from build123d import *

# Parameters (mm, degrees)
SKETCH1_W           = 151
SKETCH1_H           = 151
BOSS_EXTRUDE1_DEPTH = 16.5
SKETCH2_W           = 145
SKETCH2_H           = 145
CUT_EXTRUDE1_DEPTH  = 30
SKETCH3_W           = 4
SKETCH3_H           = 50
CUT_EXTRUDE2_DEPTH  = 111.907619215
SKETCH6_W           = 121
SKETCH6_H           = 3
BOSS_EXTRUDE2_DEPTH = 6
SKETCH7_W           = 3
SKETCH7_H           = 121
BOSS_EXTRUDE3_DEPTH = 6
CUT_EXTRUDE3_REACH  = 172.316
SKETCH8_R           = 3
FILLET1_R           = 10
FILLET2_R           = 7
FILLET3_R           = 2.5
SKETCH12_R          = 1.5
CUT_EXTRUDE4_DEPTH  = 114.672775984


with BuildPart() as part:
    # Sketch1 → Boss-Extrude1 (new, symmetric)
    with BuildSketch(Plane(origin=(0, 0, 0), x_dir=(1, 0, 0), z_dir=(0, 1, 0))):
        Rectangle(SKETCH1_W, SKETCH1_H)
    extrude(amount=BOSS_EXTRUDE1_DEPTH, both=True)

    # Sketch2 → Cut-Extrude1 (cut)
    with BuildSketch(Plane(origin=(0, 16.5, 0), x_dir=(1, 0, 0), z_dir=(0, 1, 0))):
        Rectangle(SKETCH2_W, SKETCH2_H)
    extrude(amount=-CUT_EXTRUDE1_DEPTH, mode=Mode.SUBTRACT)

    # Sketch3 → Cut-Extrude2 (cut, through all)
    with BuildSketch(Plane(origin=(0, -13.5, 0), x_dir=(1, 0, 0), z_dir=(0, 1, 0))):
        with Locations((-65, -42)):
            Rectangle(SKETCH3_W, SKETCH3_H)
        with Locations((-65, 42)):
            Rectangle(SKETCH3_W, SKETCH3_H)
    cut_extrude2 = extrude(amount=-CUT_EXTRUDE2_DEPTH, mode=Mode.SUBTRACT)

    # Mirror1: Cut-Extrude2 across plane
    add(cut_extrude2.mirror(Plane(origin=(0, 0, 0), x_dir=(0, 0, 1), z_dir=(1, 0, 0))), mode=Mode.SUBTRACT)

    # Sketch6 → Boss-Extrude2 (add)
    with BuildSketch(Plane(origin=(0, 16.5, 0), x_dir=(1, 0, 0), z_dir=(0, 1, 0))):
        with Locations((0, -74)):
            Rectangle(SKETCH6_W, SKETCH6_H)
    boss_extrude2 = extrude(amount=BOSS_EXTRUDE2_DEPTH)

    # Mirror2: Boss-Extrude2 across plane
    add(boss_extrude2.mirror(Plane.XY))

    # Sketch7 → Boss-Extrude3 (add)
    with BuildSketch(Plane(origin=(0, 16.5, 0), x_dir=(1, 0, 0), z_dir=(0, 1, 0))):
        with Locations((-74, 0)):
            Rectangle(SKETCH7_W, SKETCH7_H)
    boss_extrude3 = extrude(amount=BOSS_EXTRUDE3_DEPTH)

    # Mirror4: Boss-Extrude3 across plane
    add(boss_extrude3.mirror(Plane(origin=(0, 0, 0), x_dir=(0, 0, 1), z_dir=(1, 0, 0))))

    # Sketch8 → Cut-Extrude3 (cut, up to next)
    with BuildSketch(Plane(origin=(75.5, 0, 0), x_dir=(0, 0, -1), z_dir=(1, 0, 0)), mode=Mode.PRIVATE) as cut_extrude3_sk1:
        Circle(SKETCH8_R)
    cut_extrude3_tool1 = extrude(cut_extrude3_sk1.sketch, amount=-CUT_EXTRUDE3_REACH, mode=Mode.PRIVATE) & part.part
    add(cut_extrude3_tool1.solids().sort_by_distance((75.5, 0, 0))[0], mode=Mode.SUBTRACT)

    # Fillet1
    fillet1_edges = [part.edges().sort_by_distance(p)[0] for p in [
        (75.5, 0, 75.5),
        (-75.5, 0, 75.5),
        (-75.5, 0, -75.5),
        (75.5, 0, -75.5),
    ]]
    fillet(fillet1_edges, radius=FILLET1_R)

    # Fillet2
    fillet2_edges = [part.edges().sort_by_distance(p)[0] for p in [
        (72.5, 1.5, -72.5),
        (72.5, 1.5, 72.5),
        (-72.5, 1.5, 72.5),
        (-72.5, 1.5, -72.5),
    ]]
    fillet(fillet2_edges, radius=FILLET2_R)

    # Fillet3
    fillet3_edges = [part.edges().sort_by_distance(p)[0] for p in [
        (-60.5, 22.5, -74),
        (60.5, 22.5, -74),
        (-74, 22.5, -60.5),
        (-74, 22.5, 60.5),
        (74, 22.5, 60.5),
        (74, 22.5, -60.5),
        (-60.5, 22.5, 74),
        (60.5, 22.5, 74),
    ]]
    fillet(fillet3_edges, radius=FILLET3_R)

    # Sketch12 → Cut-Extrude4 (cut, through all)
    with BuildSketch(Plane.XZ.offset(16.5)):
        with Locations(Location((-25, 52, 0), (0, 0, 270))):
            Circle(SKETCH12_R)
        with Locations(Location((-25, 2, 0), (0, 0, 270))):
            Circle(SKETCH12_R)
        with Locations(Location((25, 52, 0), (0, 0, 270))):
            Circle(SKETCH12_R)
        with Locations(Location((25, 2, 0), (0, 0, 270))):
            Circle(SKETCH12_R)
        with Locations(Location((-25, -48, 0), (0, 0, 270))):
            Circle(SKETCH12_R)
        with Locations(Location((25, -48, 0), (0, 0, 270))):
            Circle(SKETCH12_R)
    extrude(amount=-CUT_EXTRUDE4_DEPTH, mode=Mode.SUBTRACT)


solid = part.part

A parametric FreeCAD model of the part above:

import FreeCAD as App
import Part
import Sketcher
from FreeCAD import Vector
Q = App.Units.Quantity


def edges_at(feature, points):
    """Names of the edges that pass closest to the given points."""
    edges = feature.Shape.Edges
    near = lambda p: min(range(len(edges)), key=lambda i: edges[i].distToShape(Part.Vertex(*p))[0])
    return sorted({f"Edge{near(p) + 1}" for p in points})


def add_polygon(sketch, points):
    """Adds a closed chain of lines whose ends are joined by coincident constraints."""
    first, n = sketch.GeometryCount, len(points)
    for a, b in zip(points, points[1:] + points[:1]):
        sketch.addGeometry(Part.LineSegment(App.Vector(*a, 0), App.Vector(*b, 0)), False)
    for i in range(n):
        sketch.addConstraint(Sketcher.Constraint("Coincident", first + i, 2, first + (i + 1) % n, 1))

doc = App.newDocument("Part")
params = doc.addObject("Spreadsheet::Sheet", "Params")
for row, (alias, value) in enumerate([
    ("sketch1_width", "151 mm"),
    ("pad1_length", "33 mm"),
    ("sketch2_width", "145 mm"),
    ("pocket1_length", "30 mm"),
    ("sketch3_width", "4 mm"),
    ("sketch3_height", "50 mm"),
    ("sketch4_width", "121 mm"),
    ("sketch4_height", "3 mm"),
    ("pad2_length", "6 mm"),
    ("sketch5_width", "3 mm"),
    ("sketch5_height", "121 mm"),
    ("pad3_length", "6 mm"),
    ("sketch6_diameter", "6 mm"),
    ("fillet_radius", "10 mm"),
    ("fillet2_radius", "7 mm"),
    ("fillet3_radius", "2.5 mm"),
    ("sketch7_diameter", "3 mm"),
], start=1):
    params.set(f"A{row}", alias)
    params.set(f"B{row}", "=" + value)
    params.setAlias(f"B{row}", alias)

body = doc.addObject("PartDesign::Body", "Body")

# Sketch on XZ plane
sketch1 = body.newObject("Sketcher::SketchObject", "Sketch")
sketch1.AttachmentSupport = (doc.getObject("XZ_Plane"), [""])
sketch1.MapMode = "FlatFace"
add_polygon(sketch1, [(-76, -76), (-76, 76), (76, 76), (76, -76)])  # lines 0-3
sketch1.addConstraint([
    Sketcher.Constraint("Vertical", 0),
    Sketcher.Constraint("Horizontal", 1),
    Sketcher.Constraint("Vertical", 2),
    Sketcher.Constraint("Horizontal", 3),
    Sketcher.Constraint("Symmetric", 0, 2, 2, 2, -1, 1),
    Sketcher.Constraint("Equal", 3, 0),
    Sketcher.Constraint("DistanceX", 1, 1, 1, 2, Q("151 mm")),
])
sketch1.setExpression("Constraints[10]", "Params.sketch1_width")
pad1 = body.newObject("PartDesign::Pad", "Pad")
pad1.Profile = sketch1
pad1.setExpression("Length", "Params.pad1_length")
pad1.Midplane = True

# Sketch on XZ plane
sketch2 = body.newObject("Sketcher::SketchObject", "Sketch001")
sketch2.AttachmentSupport = (doc.getObject("XZ_Plane"), [""])
sketch2.MapMode = "FlatFace"
sketch2.AttachmentOffset = App.Placement(Vector(0, 0, -16.5), App.Rotation())
add_polygon(sketch2, [(-72, -72), (-72, 72), (72, 72), (72, -72)])  # lines 0-3
sketch2.addConstraint([
    Sketcher.Constraint("Vertical", 0),
    Sketcher.Constraint("Horizontal", 1),
    Sketcher.Constraint("Vertical", 2),
    Sketcher.Constraint("Horizontal", 3),
    Sketcher.Constraint("Symmetric", 0, 2, 2, 2, -1, 1),
    Sketcher.Constraint("Equal", 3, 0),
    Sketcher.Constraint("DistanceX", 1, 1, 1, 2, Q("145 mm")),
])
sketch2.setExpression("Constraints[10]", "Params.sketch2_width")
pocket1 = body.newObject("PartDesign::Pocket", "Pocket")
pocket1.Profile = sketch2
pocket1.setExpression("Length", "Params.pocket1_length")
pocket1.Reversed = True

# Sketch on XZ plane
sketch3 = body.newObject("Sketcher::SketchObject", "Sketch002")
sketch3.AttachmentSupport = (doc.getObject("XZ_Plane"), [""])
sketch3.MapMode = "FlatFace"
sketch3.AttachmentOffset = App.Placement(Vector(0, 0, 13.5), App.Rotation())
add_polygon(sketch3, [(-67, 17), (-67, 67), (-63, 67), (-63, 17)])  # lines 0-3
add_polygon(sketch3, [(-67, -67), (-67, -17), (-63, -17), (-63, -67)])  # lines 4-7
sketch3.addConstraint([
    Sketcher.Constraint("Vertical", 0),
    Sketcher.Constraint("Horizontal", 1),
    Sketcher.Constraint("Vertical", 2),
    Sketcher.Constraint("Horizontal", 3),
    Sketcher.Constraint("Vertical", 4),
    Sketcher.Constraint("Horizontal", 5),
    Sketcher.Constraint("Vertical", 6),
    Sketcher.Constraint("Horizontal", 7),
    Sketcher.Constraint("Symmetric", 3, 2, 4, 2, -1),
    Sketcher.Constraint("Symmetric", 1, 2, 6, 2, -1),
    Sketcher.Constraint("DistanceX", 1, 1, 1, 2, Q("4 mm")),
    Sketcher.Constraint("DistanceY", 0, 1, 0, 2, Q("50 mm")),
    Sketcher.Constraint("DistanceX", 0, 2, -1, 1, Q("67 mm")),
    Sketcher.Constraint("DistanceY", -1, 1, 0, 2, Q("67 mm")),
])
sketch3.setExpression("Constraints[18]", "Params.sketch3_width")
sketch3.setExpression("Constraints[19]", "Params.sketch3_height")
pocket2 = body.newObject("PartDesign::Pocket", "Pocket001")
pocket2.Profile = sketch3
pocket2.Type = "ThroughAll"
pocket2.Reversed = True
doc.recompute()

mirrored = body.newObject("PartDesign::Mirrored", "Mirrored")
mirrored.Originals = [pocket2]
mirrored.MirrorPlane = (doc.getObject("YZ_Plane"), [""])
body.Tip = mirrored

# Sketch on XZ plane
sketch4 = body.newObject("Sketcher::SketchObject", "Sketch003")
sketch4.AttachmentSupport = (doc.getObject("XZ_Plane"), [""])
sketch4.MapMode = "FlatFace"
sketch4.AttachmentOffset = App.Placement(Vector(0, 0, -16.5), App.Rotation())
add_polygon(sketch4, [(-60.5, 72.5), (-60.5, 75.5), (60.5, 75.5), (60.5, 72.5)])  # lines 0-3
sketch4.addConstraint([
    Sketcher.Constraint("Vertical", 0),
    Sketcher.Constraint("Horizontal", 1),
    Sketcher.Constraint("Vertical", 2),
    Sketcher.Constraint("Horizontal", 3),
    Sketcher.Constraint("DistanceX", 1, 1, 1, 2, Q("121 mm")),
    Sketcher.Constraint("DistanceY", 0, 1, 0, 2, Q("3 mm")),
    Sketcher.Constraint("DistanceX", 0, 2, -1, 1, Q("60.5 mm")),
    Sketcher.Constraint("DistanceY", -1, 1, 0, 2, Q("75.5 mm")),
])
sketch4.setExpression("Constraints[8]", "Params.sketch4_width")
sketch4.setExpression("Constraints[9]", "Params.sketch4_height")
pad2 = body.newObject("PartDesign::Pad", "Pad001")
pad2.Profile = sketch4
pad2.setExpression("Length", "Params.pad2_length")
pad2.Reversed = True
doc.recompute()

mirrored2 = body.newObject("PartDesign::Mirrored", "Mirrored001")
mirrored2.Originals = [pad2]
mirrored2.MirrorPlane = (doc.getObject("XY_Plane"), [""])
body.Tip = mirrored2

# Sketch on XZ plane
sketch5 = body.newObject("Sketcher::SketchObject", "Sketch004")
sketch5.AttachmentSupport = (doc.getObject("XZ_Plane"), [""])
sketch5.MapMode = "FlatFace"
sketch5.AttachmentOffset = App.Placement(Vector(0, 0, -16.5), App.Rotation())
add_polygon(sketch5, [(-75.5, -60.5), (-75.5, 60.5), (-72.5, 60.5), (-72.5, -60.5)])  # lines 0-3
sketch5.addConstraint([
    Sketcher.Constraint("Vertical", 0),
    Sketcher.Constraint("Horizontal", 1),
    Sketcher.Constraint("Vertical", 2),
    Sketcher.Constraint("Horizontal", 3),
    Sketcher.Constraint("DistanceX", 1, 1, 1, 2, Q("3 mm")),
    Sketcher.Constraint("DistanceY", 0, 1, 0, 2, Q("121 mm")),
    Sketcher.Constraint("DistanceX", 0, 2, -1, 1, Q("75.5 mm")),
    Sketcher.Constraint("DistanceY", -1, 1, 0, 2, Q("60.5 mm")),
])
sketch5.setExpression("Constraints[8]", "Params.sketch5_width")
sketch5.setExpression("Constraints[9]", "Params.sketch5_height")
pad3 = body.newObject("PartDesign::Pad", "Pad002")
pad3.Profile = sketch5
pad3.setExpression("Length", "Params.pad3_length")
pad3.Reversed = True
doc.recompute()

mirrored3 = body.newObject("PartDesign::Mirrored", "Mirrored002")
mirrored3.Originals = [pad3]
mirrored3.MirrorPlane = (doc.getObject("YZ_Plane"), [""])
body.Tip = mirrored3

# Sketch on YZ plane
sketch6 = body.newObject("Sketcher::SketchObject", "Sketch005")
sketch6.AttachmentSupport = (doc.getObject("YZ_Plane"), [""])
sketch6.MapMode = "FlatFace"
sketch6.AttachmentOffset = App.Placement(Vector(0, 0, 75.5), App.Rotation())
sketch6.addGeometry(Part.Circle(Vector(0, 0, 0), Vector(0, 0, 1), 3), False)
sketch6.addConstraint([
    Sketcher.Constraint("Coincident", 0, 3, -1, 1),
    Sketcher.Constraint("Diameter", 0, Q("6 mm")),
])
sketch6.setExpression("Constraints[1]", "Params.sketch6_diameter")
pocket3 = body.newObject("PartDesign::Pocket", "Pocket002")
pocket3.Profile = sketch6
pocket3.Type = "UpToFirst"
doc.recompute()

fillet = body.newObject("PartDesign::Fillet", "Fillet")
fillet.Base = (pocket3, edges_at(pocket3, [
    (75.5, 0, 75.5),
    (-75.5, 0, 75.5),
    (-75.5, 0, -75.5),
    (75.5, 0, -75.5),
]))
fillet.setExpression("Radius", "Params.fillet_radius")
doc.recompute()

fillet2 = body.newObject("PartDesign::Fillet", "Fillet001")
fillet2.Base = (fillet, edges_at(fillet, [
    (72.5, 1.5, -72.5),
    (72.5, 1.5, 72.5),
    (-72.5, 1.5, 72.5),
    (-72.5, 1.5, -72.5),
]))
fillet2.setExpression("Radius", "Params.fillet2_radius")
doc.recompute()

fillet3 = body.newObject("PartDesign::Fillet", "Fillet002")
fillet3.Base = (fillet2, edges_at(fillet2, [
    (-60.5, 22.5, -74),
    (60.5, 22.5, -74),
    (-74, 22.5, -60.5),
    (-74, 22.5, 60.5),
    (74, 22.5, 60.5),
    (74, 22.5, -60.5),
    (-60.5, 22.5, 74),
    (60.5, 22.5, 74),
]))
fillet3.setExpression("Radius", "Params.fillet3_radius")

# Sketch on XZ plane
sketch7 = body.newObject("Sketcher::SketchObject", "Sketch006")
sketch7.AttachmentSupport = (doc.getObject("XZ_Plane"), [""])
sketch7.MapMode = "FlatFace"
sketch7.AttachmentOffset = App.Placement(Vector(0, 0, 16.5), App.Rotation())
sketch7.addGeometry([
    Part.Circle(Vector(-25, 52, 0), Vector(0, 0, 1), 1.5),  # 0
    Part.Circle(Vector(-25, 2, 0), Vector(0, 0, 1), 1.5),  # 1
    Part.Circle(Vector(25, 52, 0), Vector(0, 0, 1), 1.5),  # 2
    Part.Circle(Vector(25, 2, 0), Vector(0, 0, 1), 1.5),  # 3
    Part.Circle(Vector(-25, -48, 0), Vector(0, 0, 1), 1.5),  # 4
    Part.Circle(Vector(25, -48, 0), Vector(0, 0, 1), 1.5),  # 5
], False)
sketch7.addConstraint([
    Sketcher.Constraint("Equal", 0, 1),
    Sketcher.Constraint("Equal", 1, 2),
    Sketcher.Constraint("Equal", 2, 3),
    Sketcher.Constraint("Equal", 3, 4),
    Sketcher.Constraint("Equal", 4, 5),
    Sketcher.Constraint("Symmetric", 0, 3, 2, 3, -2),
    Sketcher.Constraint("Symmetric", 1, 3, 3, 3, -2),
    Sketcher.Constraint("Symmetric", 4, 3, 5, 3, -2),
    Sketcher.Constraint("Vertical", 0, 3, 1, 3),
    Sketcher.Constraint("Vertical", 1, 3, 4, 3),
    Sketcher.Constraint("Diameter", 0, Q("3 mm")),
    Sketcher.Constraint("DistanceX", 0, 3, -1, 1, Q("25 mm")),
    Sketcher.Constraint("DistanceY", -1, 1, 0, 3, Q("52 mm")),
    Sketcher.Constraint("DistanceY", -1, 1, 1, 3, Q("2 mm")),
    Sketcher.Constraint("DistanceY", 4, 3, -1, 1, Q("48 mm")),
])
sketch7.setExpression("Constraints[10]", "Params.sketch7_diameter")
pocket4 = body.newObject("PartDesign::Pocket", "Pocket003")
pocket4.Profile = sketch7
pocket4.Type = "ThroughAll"

doc.recompute()
